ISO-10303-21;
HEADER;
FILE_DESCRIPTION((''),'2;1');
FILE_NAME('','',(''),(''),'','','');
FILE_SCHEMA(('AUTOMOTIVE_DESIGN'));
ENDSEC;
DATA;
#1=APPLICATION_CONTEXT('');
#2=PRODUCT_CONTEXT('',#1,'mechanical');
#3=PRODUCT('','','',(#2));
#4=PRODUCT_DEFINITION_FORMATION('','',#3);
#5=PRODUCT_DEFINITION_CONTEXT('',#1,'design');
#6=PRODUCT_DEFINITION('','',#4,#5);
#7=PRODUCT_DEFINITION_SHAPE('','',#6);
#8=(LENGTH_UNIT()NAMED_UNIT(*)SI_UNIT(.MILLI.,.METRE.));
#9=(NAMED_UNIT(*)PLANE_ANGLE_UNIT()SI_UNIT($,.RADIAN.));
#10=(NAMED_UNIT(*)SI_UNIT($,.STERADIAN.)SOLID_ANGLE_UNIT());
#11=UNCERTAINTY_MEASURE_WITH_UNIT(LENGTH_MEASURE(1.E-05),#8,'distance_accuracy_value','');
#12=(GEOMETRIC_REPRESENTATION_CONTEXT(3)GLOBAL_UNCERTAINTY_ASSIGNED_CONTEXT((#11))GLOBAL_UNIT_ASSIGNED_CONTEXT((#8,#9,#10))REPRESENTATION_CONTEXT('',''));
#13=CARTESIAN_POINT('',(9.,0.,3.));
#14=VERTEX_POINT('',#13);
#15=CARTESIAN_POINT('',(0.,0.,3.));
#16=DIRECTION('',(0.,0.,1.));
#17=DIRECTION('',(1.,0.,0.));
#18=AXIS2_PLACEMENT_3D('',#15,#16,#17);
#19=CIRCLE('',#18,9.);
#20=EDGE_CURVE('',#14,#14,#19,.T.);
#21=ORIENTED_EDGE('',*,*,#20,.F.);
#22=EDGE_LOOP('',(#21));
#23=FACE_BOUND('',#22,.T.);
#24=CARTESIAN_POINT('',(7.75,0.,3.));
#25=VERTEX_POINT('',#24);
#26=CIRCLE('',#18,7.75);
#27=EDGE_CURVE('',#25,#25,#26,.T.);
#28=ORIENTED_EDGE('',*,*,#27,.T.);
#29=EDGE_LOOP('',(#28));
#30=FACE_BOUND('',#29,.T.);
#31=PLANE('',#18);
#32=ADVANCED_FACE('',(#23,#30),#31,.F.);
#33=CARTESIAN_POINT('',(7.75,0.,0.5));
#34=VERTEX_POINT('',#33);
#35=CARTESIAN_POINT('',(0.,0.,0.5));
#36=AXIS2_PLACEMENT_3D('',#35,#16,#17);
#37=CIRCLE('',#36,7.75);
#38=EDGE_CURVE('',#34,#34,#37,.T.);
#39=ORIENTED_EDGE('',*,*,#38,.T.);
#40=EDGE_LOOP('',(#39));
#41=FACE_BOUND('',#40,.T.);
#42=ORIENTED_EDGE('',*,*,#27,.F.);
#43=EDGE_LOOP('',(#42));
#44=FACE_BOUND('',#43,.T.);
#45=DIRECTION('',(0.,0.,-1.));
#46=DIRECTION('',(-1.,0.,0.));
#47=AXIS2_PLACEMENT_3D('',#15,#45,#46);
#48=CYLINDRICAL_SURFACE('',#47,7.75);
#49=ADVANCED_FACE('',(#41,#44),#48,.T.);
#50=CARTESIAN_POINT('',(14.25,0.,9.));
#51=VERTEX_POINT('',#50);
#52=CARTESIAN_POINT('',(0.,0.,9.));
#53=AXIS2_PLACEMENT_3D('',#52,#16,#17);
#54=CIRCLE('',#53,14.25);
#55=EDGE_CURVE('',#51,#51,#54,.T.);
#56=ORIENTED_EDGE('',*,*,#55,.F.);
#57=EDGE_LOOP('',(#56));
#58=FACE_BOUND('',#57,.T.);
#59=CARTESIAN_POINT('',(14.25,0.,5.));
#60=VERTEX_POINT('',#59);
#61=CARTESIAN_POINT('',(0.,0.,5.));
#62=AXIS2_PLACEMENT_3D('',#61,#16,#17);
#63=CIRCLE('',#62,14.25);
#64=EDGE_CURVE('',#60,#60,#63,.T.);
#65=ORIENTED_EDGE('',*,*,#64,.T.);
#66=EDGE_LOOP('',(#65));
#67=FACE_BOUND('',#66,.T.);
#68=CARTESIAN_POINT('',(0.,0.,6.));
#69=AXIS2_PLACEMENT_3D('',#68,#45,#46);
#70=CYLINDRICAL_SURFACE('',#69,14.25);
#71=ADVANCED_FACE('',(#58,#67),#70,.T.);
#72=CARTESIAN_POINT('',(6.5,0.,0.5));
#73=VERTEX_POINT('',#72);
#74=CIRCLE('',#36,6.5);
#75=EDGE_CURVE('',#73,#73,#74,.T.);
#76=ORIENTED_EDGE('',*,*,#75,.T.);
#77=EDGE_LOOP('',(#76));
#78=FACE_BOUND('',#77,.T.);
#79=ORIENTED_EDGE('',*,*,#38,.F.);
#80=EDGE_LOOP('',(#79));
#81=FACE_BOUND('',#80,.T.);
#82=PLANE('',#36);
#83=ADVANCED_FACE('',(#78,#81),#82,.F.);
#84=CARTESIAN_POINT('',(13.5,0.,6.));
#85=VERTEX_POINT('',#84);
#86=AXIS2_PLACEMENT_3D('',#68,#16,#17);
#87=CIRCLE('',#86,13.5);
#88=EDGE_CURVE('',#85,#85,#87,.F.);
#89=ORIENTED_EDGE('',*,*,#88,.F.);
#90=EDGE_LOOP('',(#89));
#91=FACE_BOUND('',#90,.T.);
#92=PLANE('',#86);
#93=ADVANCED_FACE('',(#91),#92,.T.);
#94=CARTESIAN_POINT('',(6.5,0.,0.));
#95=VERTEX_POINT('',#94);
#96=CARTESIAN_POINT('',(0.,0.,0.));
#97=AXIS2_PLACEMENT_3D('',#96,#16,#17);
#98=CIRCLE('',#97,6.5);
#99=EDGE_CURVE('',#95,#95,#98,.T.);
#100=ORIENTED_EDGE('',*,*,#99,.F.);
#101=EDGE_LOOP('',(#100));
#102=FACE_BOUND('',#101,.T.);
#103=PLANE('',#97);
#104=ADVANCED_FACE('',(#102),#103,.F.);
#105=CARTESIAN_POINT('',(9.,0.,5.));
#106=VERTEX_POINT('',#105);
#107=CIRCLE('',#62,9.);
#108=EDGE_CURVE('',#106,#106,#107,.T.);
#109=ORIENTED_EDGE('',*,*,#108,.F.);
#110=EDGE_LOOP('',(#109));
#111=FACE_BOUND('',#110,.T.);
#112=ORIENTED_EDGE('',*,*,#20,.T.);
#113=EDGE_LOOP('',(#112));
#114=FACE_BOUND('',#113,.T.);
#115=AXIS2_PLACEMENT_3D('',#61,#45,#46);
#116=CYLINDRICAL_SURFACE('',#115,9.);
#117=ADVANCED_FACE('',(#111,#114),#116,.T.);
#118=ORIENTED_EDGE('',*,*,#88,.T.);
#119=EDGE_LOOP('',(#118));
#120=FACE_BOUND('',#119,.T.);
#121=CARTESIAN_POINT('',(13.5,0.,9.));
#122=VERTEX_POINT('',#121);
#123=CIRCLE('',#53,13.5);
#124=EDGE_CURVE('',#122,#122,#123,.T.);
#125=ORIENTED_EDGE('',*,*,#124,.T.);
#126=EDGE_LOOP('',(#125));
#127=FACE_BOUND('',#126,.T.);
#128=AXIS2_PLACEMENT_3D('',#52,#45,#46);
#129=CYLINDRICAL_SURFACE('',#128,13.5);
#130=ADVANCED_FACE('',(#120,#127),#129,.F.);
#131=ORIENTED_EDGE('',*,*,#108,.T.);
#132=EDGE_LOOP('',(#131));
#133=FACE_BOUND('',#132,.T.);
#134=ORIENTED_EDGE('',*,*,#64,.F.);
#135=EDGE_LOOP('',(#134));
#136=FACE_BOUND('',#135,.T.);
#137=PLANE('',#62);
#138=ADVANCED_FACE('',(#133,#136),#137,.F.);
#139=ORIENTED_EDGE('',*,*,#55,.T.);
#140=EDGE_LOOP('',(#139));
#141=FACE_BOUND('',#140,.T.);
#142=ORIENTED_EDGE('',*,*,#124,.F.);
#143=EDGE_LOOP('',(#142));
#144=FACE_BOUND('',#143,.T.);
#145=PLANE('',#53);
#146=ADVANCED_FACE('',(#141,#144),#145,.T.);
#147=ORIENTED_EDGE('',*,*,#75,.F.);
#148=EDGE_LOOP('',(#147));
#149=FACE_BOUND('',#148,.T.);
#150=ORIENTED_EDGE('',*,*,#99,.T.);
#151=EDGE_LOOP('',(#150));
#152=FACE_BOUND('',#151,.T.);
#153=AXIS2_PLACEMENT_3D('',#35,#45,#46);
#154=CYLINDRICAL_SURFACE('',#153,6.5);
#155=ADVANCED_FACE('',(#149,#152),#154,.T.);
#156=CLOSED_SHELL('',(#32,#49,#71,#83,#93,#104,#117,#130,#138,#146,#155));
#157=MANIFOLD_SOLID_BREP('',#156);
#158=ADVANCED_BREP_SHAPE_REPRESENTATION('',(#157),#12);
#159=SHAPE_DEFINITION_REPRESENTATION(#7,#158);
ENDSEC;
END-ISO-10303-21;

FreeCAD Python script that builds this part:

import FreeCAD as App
import Part
import Sketcher
from FreeCAD import Vector
Q = App.Units.Quantity

doc = App.newDocument("Part")
body = doc.addObject("PartDesign::Body", "Body")

# Sketch on XY plane
sketch1 = body.newObject("Sketcher::SketchObject", "Sketch")
sketch1.AttachmentSupport = (doc.getObject("XY_Plane"), [""])
sketch1.MapMode = "FlatFace"
sketch1.addGeometry(Part.Circle(Vector(0, 0, 0), Vector(0, 0, 1), 6), False)
sketch1.addConstraint(Sketcher.Constraint("Coincident", 0, 3, -1, 1))
sketch1.addConstraint(Sketcher.Constraint("Diameter", 0, Q("13 mm")))
pad1 = body.newObject("PartDesign::Pad", "Pad")
pad1.Profile = sketch1
pad1.Length = 0.5

# Sketch on XY plane
sketch2 = body.newObject("Sketcher::SketchObject", "Sketch001")
sketch2.AttachmentSupport = (doc.getObject("XY_Plane"), [""])
sketch2.MapMode = "FlatFace"
sketch2.AttachmentOffset = App.Placement(Vector(0, 0, 0.5), App.Rotation())
sketch2.addGeometry(Part.Circle(Vector(0, 0, 0), Vector(0, 0, 1), 8), False)
sketch2.addConstraint(Sketcher.Constraint("Coincident", 0, 3, -1, 1))
sketch2.addConstraint(Sketcher.Constraint("Diameter", 0, Q("15.5 mm")))
pad2 = body.newObject("PartDesign::Pad", "Pad001")
pad2.Profile = sketch2
pad2.Length = 2.5

# Sketch on XY plane
sketch3 = body.newObject("Sketcher::SketchObject", "Sketch002")
sketch3.AttachmentSupport = (doc.getObject("XY_Plane"), [""])
sketch3.MapMode = "FlatFace"
sketch3.AttachmentOffset = App.Placement(Vector(0, 0, 3), App.Rotation())
sketch3.addGeometry(Part.Circle(Vector(0, 0, 0), Vector(0, 0, 1), 9), False)
sketch3.addConstraint(Sketcher.Constraint("Coincident", 0, 3, -1, 1))
sketch3.addConstraint(Sketcher.Constraint("Diameter", 0, Q("18 mm")))
pad3 = body.newObject("PartDesign::Pad", "Pad002")
pad3.Profile = sketch3
pad3.Length = 2

# Sketch on XY plane
sketch4 = body.newObject("Sketcher::SketchObject", "Sketch003")
sketch4.AttachmentSupport = (doc.getObject("XY_Plane"), [""])
sketch4.MapMode = "FlatFace"
sketch4.AttachmentOffset = App.Placement(Vector(0, 0, 5), App.Rotation())
sketch4.addGeometry(Part.Circle(Vector(0, 0, 0), Vector(0, 0, 1), 14), False)
sketch4.addConstraint(Sketcher.Constraint("Coincident", 0, 3, -1, 1))
sketch4.addConstraint(Sketcher.Constraint("Diameter", 0, Q("28.5 mm")))
pad4 = body.newObject("PartDesign::Pad", "Pad003")
pad4.Profile = sketch4
pad4.Length = 1

# Sketch on XY plane
sketch5 = body.newObject("Sketcher::SketchObject", "Sketch004")
sketch5.AttachmentSupport = (doc.getObject("XY_Plane"), [""])
sketch5.MapMode = "FlatFace"
sketch5.AttachmentOffset = App.Placement(Vector(0, 0, 6), App.Rotation())
sketch5.addGeometry(Part.Circle(Vector(0, 0, 0), Vector(0, 0, 1), 14), False)
sketch5.addGeometry(Part.Circle(Vector(0, 0, 0), Vector(0, 0, 1), 14), False)
sketch5.addConstraint(Sketcher.Constraint("Coincident", 0, 3, -1, 1))
sketch5.addConstraint(Sketcher.Constraint("Coincident", 1, 3, -1, 1))
sketch5.addConstraint(Sketcher.Constraint("Diameter", 1, Q("27 mm")))
sketch5.addConstraint(Sketcher.Constraint("Diameter", 0, Q("28.5 mm")))
pad5 = body.newObject("PartDesign::Pad", "Pad004")
pad5.Profile = sketch5
pad5.Length = 3

doc.recompute()
